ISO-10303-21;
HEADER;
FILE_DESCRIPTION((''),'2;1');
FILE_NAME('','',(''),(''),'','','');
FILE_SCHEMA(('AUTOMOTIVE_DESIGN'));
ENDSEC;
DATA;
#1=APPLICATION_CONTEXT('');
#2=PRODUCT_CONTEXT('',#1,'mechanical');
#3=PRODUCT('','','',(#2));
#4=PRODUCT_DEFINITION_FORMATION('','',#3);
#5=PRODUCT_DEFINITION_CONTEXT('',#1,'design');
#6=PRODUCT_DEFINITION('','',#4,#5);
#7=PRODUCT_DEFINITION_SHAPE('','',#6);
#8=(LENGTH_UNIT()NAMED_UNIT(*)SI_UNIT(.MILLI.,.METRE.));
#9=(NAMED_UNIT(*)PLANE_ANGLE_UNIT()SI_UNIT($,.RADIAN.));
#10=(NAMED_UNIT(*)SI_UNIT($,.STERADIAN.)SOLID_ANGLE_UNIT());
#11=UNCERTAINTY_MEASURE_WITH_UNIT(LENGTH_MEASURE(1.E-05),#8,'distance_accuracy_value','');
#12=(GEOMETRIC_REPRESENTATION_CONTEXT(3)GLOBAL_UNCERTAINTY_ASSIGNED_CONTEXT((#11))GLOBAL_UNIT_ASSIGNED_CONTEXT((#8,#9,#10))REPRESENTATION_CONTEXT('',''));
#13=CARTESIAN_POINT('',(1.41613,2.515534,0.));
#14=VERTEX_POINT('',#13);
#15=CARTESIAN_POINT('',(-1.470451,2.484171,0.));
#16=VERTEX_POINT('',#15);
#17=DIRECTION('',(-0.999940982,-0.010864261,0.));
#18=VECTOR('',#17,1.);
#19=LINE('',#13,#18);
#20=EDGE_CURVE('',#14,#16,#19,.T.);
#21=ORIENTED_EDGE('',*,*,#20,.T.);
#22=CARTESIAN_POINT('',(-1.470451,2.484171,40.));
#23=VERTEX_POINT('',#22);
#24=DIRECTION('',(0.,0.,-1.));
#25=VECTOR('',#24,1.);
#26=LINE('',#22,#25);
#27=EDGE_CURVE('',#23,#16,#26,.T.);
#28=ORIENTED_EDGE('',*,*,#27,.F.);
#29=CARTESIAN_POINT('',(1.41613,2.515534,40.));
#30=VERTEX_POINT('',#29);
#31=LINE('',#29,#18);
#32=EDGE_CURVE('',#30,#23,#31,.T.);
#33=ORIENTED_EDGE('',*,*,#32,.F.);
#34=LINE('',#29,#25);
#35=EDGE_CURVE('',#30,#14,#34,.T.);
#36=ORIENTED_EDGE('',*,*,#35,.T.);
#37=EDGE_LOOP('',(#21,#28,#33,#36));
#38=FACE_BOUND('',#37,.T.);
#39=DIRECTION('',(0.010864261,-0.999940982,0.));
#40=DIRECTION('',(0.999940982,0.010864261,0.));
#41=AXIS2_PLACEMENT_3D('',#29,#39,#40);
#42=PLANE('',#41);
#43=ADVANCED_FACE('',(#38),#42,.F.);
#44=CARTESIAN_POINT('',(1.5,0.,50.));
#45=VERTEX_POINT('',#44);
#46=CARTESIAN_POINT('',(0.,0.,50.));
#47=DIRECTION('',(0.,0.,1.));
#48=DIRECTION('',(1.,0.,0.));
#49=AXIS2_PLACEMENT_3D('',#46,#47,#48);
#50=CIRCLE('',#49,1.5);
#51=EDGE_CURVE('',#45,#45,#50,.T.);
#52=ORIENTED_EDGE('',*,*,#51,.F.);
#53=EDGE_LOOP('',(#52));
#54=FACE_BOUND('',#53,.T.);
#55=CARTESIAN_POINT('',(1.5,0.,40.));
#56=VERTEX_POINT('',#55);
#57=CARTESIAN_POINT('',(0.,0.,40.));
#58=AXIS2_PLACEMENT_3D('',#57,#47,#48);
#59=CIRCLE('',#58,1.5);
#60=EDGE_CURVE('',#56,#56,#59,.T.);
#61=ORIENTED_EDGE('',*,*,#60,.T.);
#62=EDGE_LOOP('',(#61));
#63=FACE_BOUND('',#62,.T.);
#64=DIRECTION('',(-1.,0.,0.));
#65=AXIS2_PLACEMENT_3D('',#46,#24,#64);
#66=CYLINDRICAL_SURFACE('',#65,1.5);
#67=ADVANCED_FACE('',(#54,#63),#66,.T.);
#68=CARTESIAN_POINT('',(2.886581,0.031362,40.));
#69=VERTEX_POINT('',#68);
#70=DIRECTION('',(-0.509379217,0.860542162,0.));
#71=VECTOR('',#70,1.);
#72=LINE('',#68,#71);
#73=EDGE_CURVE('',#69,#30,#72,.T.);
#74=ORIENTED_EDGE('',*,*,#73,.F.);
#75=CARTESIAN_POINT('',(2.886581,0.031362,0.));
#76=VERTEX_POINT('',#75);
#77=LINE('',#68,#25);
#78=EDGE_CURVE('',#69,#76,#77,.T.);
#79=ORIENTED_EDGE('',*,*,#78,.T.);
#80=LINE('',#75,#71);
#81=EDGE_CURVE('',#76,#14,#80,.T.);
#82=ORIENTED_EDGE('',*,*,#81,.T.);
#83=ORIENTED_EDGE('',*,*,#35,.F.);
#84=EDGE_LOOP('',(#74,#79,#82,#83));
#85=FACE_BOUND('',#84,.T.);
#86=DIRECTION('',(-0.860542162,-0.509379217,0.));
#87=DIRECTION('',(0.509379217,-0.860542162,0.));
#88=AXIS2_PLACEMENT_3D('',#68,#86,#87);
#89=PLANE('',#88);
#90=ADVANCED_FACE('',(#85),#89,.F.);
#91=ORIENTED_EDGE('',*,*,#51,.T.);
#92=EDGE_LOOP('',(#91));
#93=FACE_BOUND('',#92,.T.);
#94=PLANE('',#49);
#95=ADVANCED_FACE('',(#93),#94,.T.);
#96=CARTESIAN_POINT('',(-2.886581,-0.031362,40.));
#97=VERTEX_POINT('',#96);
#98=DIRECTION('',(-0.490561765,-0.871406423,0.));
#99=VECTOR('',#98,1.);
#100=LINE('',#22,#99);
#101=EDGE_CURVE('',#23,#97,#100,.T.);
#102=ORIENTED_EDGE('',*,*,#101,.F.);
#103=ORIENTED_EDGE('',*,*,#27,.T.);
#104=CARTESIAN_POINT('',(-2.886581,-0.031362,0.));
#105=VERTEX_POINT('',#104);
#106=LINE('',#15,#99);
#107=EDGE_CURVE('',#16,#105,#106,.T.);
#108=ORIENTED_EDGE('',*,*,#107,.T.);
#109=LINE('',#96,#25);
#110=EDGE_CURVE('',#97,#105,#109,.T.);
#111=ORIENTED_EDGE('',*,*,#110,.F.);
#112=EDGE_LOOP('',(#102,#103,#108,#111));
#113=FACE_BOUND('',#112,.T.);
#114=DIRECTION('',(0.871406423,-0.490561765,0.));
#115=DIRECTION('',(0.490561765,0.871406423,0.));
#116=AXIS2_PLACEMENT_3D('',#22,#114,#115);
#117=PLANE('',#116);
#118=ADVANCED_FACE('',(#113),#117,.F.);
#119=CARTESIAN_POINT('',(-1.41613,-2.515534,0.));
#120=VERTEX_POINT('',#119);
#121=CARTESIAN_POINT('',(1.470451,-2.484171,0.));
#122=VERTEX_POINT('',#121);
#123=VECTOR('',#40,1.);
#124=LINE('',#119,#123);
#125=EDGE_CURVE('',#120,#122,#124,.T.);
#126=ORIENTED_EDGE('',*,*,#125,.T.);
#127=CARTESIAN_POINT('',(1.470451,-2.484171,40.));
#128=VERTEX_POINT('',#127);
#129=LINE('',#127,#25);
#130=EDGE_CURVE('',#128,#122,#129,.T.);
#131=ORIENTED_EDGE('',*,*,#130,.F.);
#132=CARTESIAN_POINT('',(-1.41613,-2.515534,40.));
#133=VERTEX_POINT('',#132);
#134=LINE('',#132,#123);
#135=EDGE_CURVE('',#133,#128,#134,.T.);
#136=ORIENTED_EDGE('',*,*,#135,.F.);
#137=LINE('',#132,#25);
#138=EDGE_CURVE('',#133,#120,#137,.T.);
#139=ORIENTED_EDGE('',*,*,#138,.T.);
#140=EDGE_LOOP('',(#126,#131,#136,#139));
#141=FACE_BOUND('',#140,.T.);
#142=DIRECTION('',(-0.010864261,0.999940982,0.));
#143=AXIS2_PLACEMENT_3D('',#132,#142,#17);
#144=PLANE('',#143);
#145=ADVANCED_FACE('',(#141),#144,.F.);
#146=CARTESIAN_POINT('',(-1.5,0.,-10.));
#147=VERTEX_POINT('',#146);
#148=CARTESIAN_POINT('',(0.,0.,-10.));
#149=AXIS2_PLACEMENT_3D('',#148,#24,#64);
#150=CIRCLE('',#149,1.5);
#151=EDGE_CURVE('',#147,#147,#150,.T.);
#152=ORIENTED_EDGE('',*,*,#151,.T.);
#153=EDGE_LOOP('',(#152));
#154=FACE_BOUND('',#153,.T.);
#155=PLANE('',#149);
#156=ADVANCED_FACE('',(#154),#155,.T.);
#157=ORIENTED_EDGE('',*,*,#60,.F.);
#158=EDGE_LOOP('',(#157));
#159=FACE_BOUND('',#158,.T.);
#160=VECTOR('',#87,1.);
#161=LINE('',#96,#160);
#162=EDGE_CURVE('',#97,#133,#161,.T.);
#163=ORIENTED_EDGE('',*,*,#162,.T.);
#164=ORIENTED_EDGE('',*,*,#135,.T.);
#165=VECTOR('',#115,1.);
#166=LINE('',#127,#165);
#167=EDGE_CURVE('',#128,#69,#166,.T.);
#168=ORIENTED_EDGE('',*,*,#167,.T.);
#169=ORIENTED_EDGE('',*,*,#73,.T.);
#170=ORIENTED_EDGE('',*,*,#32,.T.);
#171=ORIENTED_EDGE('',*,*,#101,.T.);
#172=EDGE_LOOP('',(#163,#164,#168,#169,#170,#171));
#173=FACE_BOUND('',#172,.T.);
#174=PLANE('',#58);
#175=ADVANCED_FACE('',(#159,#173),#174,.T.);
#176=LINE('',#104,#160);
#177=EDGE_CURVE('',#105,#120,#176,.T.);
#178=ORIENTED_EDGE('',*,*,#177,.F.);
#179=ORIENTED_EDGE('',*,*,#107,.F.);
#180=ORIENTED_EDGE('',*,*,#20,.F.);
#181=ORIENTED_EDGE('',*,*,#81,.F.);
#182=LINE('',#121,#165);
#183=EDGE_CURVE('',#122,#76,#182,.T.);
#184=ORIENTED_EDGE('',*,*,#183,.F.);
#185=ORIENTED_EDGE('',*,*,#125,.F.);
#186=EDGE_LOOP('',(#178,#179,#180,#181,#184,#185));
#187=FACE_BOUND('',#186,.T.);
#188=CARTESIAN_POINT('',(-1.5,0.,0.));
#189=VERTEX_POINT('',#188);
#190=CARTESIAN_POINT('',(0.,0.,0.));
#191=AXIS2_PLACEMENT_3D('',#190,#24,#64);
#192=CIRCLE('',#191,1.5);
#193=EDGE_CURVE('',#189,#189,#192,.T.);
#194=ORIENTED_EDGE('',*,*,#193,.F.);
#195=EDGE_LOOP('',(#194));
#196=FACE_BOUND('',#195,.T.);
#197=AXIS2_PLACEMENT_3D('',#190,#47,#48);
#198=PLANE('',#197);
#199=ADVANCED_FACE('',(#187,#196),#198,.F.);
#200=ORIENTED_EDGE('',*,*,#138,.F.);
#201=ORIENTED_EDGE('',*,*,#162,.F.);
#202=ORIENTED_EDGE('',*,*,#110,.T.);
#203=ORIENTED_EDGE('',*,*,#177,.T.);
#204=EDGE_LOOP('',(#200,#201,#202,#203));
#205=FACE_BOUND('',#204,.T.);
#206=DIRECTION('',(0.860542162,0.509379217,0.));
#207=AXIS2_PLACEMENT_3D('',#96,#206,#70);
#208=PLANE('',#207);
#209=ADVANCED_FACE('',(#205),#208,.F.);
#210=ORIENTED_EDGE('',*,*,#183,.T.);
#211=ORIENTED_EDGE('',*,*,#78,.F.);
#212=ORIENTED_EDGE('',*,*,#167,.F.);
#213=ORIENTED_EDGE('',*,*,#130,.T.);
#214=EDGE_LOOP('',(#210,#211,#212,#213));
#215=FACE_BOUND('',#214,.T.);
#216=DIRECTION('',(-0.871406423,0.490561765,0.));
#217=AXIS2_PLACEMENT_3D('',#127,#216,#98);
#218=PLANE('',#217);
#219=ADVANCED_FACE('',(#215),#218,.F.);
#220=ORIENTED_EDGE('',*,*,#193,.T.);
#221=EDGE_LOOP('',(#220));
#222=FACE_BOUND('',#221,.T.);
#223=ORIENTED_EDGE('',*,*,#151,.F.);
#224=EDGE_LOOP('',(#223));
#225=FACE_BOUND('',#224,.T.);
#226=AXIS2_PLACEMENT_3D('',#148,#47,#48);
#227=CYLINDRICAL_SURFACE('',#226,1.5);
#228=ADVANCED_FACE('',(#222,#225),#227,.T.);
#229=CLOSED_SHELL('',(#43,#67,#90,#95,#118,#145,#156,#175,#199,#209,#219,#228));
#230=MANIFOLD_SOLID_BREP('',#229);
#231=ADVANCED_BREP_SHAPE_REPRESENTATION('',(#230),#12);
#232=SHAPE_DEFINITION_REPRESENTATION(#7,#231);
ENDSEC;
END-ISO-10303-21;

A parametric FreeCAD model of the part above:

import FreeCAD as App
import Part
import Sketcher

V = App.Vector


def add_polygon(sketch, points):
    """Adds a closed chain of lines whose ends are joined by coincident constraints."""
    first, n = sketch.GeometryCount, len(points)
    for a, b in zip(points, points[1:] + points[:1]):
        sketch.addGeometry(Part.LineSegment(App.Vector(*a, 0), App.Vector(*b, 0)), False)
    for i in range(n):
        sketch.addConstraint(Sketcher.Constraint("Coincident", first + i, 2, first + (i + 1) % n, 1))

doc = App.newDocument("Part")
body = doc.addObject("PartDesign::Body", "Body")

# Sketch on XY plane
sketch1 = body.newObject("Sketcher::SketchObject", "Sketch")
sketch1.AttachmentSupport = (doc.getObject("XY_Plane"), [""])
sketch1.MapMode = "FlatFace"
add_polygon(sketch1, [(1.470451, -2.484171), (2.886581, 0.031362), (1.41613, 2.515534), (-1.470451, 2.484171), (-2.886581, -0.031362), (-1.41613, -2.515534)])  # lines 0-5
sketch1.addConstraint([
    Sketcher.Constraint("Symmetric", 0, 2, 3, 2, -1, 1),
    Sketcher.Constraint("Symmetric", 1, 2, 4, 2, -1, 1),
    Sketcher.Constraint("Symmetric", 2, 2, 5, 2, -1, 1),
    Sketcher.Constraint("Equal", 0, 1),
    Sketcher.Constraint("Equal", 1, 2),
    Sketcher.Constraint("Distance", 0, 2.886751),
    Sketcher.Constraint("DistanceX", -1, 1, 0, 2, 2.886581),
    Sketcher.Constraint("DistanceX", -1, 1, 1, 2, 1.41613),
    Sketcher.Constraint("DistanceX", 2, 2, -1, 1, 1.470451),
])
pad1 = body.newObject("PartDesign::Pad", "Pad")
pad1.Profile = sketch1
pad1.Length = 40

# Sketch on XY plane
sketch2 = body.newObject("Sketcher::SketchObject", "Sketch001")
sketch2.AttachmentSupport = (doc.getObject("XY_Plane"), [""])
sketch2.MapMode = "FlatFace"
sketch2.AttachmentOffset = App.Placement(V(0, 0, 40), App.Rotation())
sketch2.addGeometry(Part.Circle(V(0, 0, 0), V(0, 0, 1), 1.5), False)
sketch2.addConstraint([
    Sketcher.Constraint("Coincident", 0, 3, -1, 1),
    Sketcher.Constraint("Diameter", 0, 3.0),
])
pad2 = body.newObject("PartDesign::Pad", "Pad001")
pad2.Profile = sketch2
pad2.Length = 10

# Sketch on XY plane
sketch3 = body.newObject("Sketcher::SketchObject", "Sketch002")
sketch3.AttachmentSupport = (doc.getObject("XY_Plane"), [""])
sketch3.MapMode = "FlatFace"
sketch3.addGeometry(Part.Circle(V(0, 0, 0), V(0, 0, 1), 1.5), False)
sketch3.addConstraint([
    Sketcher.Constraint("Coincident", 0, 3, -1, 1),
    Sketcher.Constraint("Diameter", 0, 3.0),
])
pad3 = body.newObject("PartDesign::Pad", "Pad002")
pad3.Profile = sketch3
pad3.Length = 10
pad3.Reversed = True

doc.recompute()
